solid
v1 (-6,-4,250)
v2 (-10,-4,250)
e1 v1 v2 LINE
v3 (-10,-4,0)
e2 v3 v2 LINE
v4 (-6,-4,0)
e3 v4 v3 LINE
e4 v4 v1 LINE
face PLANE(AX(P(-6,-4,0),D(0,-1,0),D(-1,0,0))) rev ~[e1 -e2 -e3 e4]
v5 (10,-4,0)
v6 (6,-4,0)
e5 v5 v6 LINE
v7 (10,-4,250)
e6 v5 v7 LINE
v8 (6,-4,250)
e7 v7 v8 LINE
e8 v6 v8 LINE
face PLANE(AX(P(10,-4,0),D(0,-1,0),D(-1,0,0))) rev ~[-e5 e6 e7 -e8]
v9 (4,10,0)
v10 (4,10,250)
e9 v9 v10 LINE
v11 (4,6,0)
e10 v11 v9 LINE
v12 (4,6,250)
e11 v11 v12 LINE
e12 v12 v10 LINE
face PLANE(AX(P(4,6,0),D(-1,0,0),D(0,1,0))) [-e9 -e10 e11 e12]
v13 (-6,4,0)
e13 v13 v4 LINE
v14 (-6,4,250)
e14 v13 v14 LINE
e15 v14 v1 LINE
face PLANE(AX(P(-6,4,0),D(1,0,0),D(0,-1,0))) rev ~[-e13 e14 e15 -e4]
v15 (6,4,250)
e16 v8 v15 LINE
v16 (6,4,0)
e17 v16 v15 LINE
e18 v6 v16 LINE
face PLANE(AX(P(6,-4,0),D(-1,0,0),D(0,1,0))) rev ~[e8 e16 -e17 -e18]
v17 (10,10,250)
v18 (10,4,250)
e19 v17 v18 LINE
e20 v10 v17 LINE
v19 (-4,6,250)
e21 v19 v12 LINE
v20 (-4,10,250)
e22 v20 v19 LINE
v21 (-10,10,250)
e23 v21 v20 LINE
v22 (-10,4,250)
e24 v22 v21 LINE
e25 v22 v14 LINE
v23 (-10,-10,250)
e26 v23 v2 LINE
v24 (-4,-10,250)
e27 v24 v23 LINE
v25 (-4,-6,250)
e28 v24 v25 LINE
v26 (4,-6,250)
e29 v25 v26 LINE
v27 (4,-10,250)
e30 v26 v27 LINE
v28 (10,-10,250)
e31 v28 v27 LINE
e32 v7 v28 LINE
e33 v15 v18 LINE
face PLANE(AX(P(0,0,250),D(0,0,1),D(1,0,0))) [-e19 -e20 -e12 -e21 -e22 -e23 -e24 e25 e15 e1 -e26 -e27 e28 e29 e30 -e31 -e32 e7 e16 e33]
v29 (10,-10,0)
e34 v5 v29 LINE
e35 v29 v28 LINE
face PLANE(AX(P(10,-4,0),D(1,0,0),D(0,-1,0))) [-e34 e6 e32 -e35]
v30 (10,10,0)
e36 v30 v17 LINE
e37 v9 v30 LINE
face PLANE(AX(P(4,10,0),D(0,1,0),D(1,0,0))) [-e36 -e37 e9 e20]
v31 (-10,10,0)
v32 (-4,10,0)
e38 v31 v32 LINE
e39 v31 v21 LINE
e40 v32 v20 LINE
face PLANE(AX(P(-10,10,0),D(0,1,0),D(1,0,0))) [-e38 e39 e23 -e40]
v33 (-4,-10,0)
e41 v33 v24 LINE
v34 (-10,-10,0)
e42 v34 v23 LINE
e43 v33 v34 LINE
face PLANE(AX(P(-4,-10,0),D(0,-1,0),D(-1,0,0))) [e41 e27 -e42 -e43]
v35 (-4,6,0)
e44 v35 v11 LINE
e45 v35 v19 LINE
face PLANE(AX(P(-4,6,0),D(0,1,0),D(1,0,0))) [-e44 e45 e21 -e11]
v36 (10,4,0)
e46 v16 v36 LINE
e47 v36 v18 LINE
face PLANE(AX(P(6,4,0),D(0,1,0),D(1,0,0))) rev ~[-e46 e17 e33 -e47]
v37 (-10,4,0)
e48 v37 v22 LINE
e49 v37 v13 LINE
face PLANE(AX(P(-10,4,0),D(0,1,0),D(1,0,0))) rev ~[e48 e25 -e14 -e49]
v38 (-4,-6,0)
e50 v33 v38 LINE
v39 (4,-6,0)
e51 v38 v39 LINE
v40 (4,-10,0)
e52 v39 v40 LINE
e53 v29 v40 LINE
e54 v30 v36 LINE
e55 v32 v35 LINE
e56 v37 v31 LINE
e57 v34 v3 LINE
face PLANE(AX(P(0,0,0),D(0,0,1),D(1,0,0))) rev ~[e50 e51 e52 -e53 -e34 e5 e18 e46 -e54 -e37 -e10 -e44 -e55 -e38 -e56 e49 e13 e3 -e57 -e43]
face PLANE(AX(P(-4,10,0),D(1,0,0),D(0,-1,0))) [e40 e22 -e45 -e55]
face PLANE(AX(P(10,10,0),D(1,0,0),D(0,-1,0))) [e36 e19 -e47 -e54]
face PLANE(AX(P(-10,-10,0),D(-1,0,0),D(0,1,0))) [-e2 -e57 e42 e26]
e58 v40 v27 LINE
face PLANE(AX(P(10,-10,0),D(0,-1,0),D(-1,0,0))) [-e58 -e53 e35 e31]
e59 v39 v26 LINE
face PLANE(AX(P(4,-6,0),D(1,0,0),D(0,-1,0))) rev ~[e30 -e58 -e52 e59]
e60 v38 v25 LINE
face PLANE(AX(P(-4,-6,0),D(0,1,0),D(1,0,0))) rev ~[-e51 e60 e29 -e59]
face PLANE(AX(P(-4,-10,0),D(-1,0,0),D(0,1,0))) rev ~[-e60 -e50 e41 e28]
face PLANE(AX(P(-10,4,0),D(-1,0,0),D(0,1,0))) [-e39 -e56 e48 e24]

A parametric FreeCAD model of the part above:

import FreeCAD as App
import Part
import Sketcher
Q = App.Units.Quantity

doc = App.newDocument("Part")
body = doc.addObject("PartDesign::Body", "Body")

sketch1 = body.newObject("Sketcher::SketchObject", "Sketch")
sketch1.AttachmentSupport = (doc.getObject("XY_Plane"), [""])
sketch1.MapMode = "FlatFace"
sketch1.addGeometry(Part.LineSegment(App.Vector(4, 6, 0), App.Vector(-4, 6, 0)), False)
sketch1.addGeometry(Part.LineSegment(App.Vector(-4, 6, 0), App.Vector(-4, 10, 0)), False)
sketch1.addGeometry(Part.LineSegment(App.Vector(-4, 10, 0), App.Vector(-10, 10, 0)), False)
sketch1.addGeometry(Part.LineSegment(App.Vector(-10, 10, 0), App.Vector(-10, 4, 0)), False)
sketch1.addGeometry(Part.LineSegment(App.Vector(-10, 4, 0), App.Vector(-6, 4, 0)), False)
sketch1.addGeometry(Part.LineSegment(App.Vector(-6, 4, 0), App.Vector(-6, -4, 0)), False)
sketch1.addGeometry(Part.LineSegment(App.Vector(-6, -4, 0), App.Vector(-10, -4, 0)), False)
sketch1.addGeometry(Part.LineSegment(App.Vector(-10, -4, 0), App.Vector(-10, -10, 0)), False)
sketch1.addGeometry(Part.LineSegment(App.Vector(-10, -10, 0), App.Vector(-4, -10, 0)), False)
sketch1.addGeometry(Part.LineSegment(App.Vector(-4, -10, 0), App.Vector(-4, -6, 0)), False)
sketch1.addGeometry(Part.LineSegment(App.Vector(-4, -6, 0), App.Vector(4, -6, 0)), False)
sketch1.addGeometry(Part.LineSegment(App.Vector(4, -6, 0), App.Vector(4, -10, 0)), False)
sketch1.addGeometry(Part.LineSegment(App.Vector(4, -10, 0), App.Vector(10, -10, 0)), False)
sketch1.addGeometry(Part.LineSegment(App.Vector(10, -10, 0), App.Vector(10, -4, 0)), False)
sketch1.addGeometry(Part.LineSegment(App.Vector(10, -4, 0), App.Vector(6, -4, 0)), False)
sketch1.addGeometry(Part.LineSegment(App.Vector(6, -4, 0), App.Vector(6, 4, 0)), False)
sketch1.addGeometry(Part.LineSegment(App.Vector(6, 4, 0), App.Vector(10, 4, 0)), False)
sketch1.addGeometry(Part.LineSegment(App.Vector(10, 4, 0), App.Vector(10, 10, 0)), False)
sketch1.addGeometry(Part.LineSegment(App.Vector(10, 10, 0), App.Vector(4, 10, 0)), False)
sketch1.addGeometry(Part.LineSegment(App.Vector(4, 10, 0), App.Vector(4, 6, 0)), False)
sketch1.addConstraint(Sketcher.Constraint("Coincident", 0, 2, 1, 1))
sketch1.addConstraint(Sketcher.Constraint("Coincident", 1, 2, 2, 1))
sketch1.addConstraint(Sketcher.Constraint("Coincident", 2, 2, 3, 1))
sketch1.addConstraint(Sketcher.Constraint("Coincident", 3, 2, 4, 1))
sketch1.addConstraint(Sketcher.Constraint("Coincident", 4, 2, 5, 1))
sketch1.addConstraint(Sketcher.Constraint("Coincident", 5, 2, 6, 1))
sketch1.addConstraint(Sketcher.Constraint("Coincident", 6, 2, 7, 1))
sketch1.addConstraint(Sketcher.Constraint("Coincident", 7, 2, 8, 1))
sketch1.addConstraint(Sketcher.Constraint("Coincident", 8, 2, 9, 1))
sketch1.addConstraint(Sketcher.Constraint("Coincident", 9, 2, 10, 1))
sketch1.addConstraint(Sketcher.Constraint("Coincident", 10, 2, 11, 1))
sketch1.addConstraint(Sketcher.Constraint("Coincident", 11, 2, 12, 1))
sketch1.addConstraint(Sketcher.Constraint("Coincident", 12, 2, 13, 1))
sketch1.addConstraint(Sketcher.Constraint("Coincident", 13, 2, 14, 1))
sketch1.addConstraint(Sketcher.Constraint("Coincident", 14, 2, 15, 1))
sketch1.addConstraint(Sketcher.Constraint("Coincident", 15, 2, 16, 1))
sketch1.addConstraint(Sketcher.Constraint("Coincident", 16, 2, 17, 1))
sketch1.addConstraint(Sketcher.Constraint("Coincident", 17, 2, 18, 1))
sketch1.addConstraint(Sketcher.Constraint("Coincident", 18, 2, 19, 1))
sketch1.addConstraint(Sketcher.Constraint("Coincident", 19, 2, 0, 1))
sketch1.addConstraint(Sketcher.Constraint("Horizontal", 0))
sketch1.addConstraint(Sketcher.Constraint("Vertical", 1))
sketch1.addConstraint(Sketcher.Constraint("Horizontal", 2))
sketch1.addConstraint(Sketcher.Constraint("Vertical", 3))
sketch1.addConstraint(Sketcher.Constraint("Horizontal", 4))
sketch1.addConstraint(Sketcher.Constraint("Vertical", 5))
sketch1.addConstraint(Sketcher.Constraint("Horizontal", 6))
sketch1.addConstraint(Sketcher.Constraint("Vertical", 7))
sketch1.addConstraint(Sketcher.Constraint("Horizontal", 8))
sketch1.addConstraint(Sketcher.Constraint("Vertical", 9))
sketch1.addConstraint(Sketcher.Constraint("Horizontal", 10))
sketch1.addConstraint(Sketcher.Constraint("Vertical", 11))
sketch1.addConstraint(Sketcher.Constraint("Horizontal", 12))
sketch1.addConstraint(Sketcher.Constraint("Vertical", 13))
sketch1.addConstraint(Sketcher.Constraint("Horizontal", 14))
sketch1.addConstraint(Sketcher.Constraint("Vertical", 15))
sketch1.addConstraint(Sketcher.Constraint("Horizontal", 16))
sketch1.addConstraint(Sketcher.Constraint("Vertical", 17))
sketch1.addConstraint(Sketcher.Constraint("Horizontal", 18))
sketch1.addConstraint(Sketcher.Constraint("Vertical", 19))
sketch1.addConstraint(Sketcher.Constraint("Symmetric", 0, 2, 10, 2, -1, 1))
sketch1.addConstraint(Sketcher.Constraint("Symmetric", 2, 2, 12, 2, -1, 1))
sketch1.addConstraint(Sketcher.Constraint("Symmetric", 4, 2, 14, 2, -1, 1))
sketch1.addConstraint(Sketcher.Constraint("Symmetric", 6, 2, 16, 2, -1, 1))
sketch1.addConstraint(Sketcher.Constraint("Symmetric", 8, 2, 18, 2, -1, 1))
sketch1.addConstraint(Sketcher.Constraint("Symmetric", 8, 2, 11, 2, -2))
sketch1.addConstraint(Sketcher.Constraint("Symmetric", 6, 2, 13, 2, -2))
sketch1.addConstraint(Sketcher.Constraint("Equal", 16, 1))
sketch1.addConstraint(Sketcher.Constraint("Equal", 18, 3))
sketch1.addConstraint(Sketcher.Constraint("Equal", 10, 5))
sketch1.addConstraint(Sketcher.Constraint("DistanceX", 0, 2, 0, 1, Q("8 mm")))
sketch1.addConstraint(Sketcher.Constraint("DistanceX", 2, 2, 2, 1, Q("6 mm")))
sketch1.addConstraint(Sketcher.Constraint("DistanceX", 4, 1, 4, 2, Q("4 mm")))
pad1 = body.newObject("PartDesign::Pad", "Pad")
pad1.Profile = sketch1
pad1.Length = 250

doc.recompute()
